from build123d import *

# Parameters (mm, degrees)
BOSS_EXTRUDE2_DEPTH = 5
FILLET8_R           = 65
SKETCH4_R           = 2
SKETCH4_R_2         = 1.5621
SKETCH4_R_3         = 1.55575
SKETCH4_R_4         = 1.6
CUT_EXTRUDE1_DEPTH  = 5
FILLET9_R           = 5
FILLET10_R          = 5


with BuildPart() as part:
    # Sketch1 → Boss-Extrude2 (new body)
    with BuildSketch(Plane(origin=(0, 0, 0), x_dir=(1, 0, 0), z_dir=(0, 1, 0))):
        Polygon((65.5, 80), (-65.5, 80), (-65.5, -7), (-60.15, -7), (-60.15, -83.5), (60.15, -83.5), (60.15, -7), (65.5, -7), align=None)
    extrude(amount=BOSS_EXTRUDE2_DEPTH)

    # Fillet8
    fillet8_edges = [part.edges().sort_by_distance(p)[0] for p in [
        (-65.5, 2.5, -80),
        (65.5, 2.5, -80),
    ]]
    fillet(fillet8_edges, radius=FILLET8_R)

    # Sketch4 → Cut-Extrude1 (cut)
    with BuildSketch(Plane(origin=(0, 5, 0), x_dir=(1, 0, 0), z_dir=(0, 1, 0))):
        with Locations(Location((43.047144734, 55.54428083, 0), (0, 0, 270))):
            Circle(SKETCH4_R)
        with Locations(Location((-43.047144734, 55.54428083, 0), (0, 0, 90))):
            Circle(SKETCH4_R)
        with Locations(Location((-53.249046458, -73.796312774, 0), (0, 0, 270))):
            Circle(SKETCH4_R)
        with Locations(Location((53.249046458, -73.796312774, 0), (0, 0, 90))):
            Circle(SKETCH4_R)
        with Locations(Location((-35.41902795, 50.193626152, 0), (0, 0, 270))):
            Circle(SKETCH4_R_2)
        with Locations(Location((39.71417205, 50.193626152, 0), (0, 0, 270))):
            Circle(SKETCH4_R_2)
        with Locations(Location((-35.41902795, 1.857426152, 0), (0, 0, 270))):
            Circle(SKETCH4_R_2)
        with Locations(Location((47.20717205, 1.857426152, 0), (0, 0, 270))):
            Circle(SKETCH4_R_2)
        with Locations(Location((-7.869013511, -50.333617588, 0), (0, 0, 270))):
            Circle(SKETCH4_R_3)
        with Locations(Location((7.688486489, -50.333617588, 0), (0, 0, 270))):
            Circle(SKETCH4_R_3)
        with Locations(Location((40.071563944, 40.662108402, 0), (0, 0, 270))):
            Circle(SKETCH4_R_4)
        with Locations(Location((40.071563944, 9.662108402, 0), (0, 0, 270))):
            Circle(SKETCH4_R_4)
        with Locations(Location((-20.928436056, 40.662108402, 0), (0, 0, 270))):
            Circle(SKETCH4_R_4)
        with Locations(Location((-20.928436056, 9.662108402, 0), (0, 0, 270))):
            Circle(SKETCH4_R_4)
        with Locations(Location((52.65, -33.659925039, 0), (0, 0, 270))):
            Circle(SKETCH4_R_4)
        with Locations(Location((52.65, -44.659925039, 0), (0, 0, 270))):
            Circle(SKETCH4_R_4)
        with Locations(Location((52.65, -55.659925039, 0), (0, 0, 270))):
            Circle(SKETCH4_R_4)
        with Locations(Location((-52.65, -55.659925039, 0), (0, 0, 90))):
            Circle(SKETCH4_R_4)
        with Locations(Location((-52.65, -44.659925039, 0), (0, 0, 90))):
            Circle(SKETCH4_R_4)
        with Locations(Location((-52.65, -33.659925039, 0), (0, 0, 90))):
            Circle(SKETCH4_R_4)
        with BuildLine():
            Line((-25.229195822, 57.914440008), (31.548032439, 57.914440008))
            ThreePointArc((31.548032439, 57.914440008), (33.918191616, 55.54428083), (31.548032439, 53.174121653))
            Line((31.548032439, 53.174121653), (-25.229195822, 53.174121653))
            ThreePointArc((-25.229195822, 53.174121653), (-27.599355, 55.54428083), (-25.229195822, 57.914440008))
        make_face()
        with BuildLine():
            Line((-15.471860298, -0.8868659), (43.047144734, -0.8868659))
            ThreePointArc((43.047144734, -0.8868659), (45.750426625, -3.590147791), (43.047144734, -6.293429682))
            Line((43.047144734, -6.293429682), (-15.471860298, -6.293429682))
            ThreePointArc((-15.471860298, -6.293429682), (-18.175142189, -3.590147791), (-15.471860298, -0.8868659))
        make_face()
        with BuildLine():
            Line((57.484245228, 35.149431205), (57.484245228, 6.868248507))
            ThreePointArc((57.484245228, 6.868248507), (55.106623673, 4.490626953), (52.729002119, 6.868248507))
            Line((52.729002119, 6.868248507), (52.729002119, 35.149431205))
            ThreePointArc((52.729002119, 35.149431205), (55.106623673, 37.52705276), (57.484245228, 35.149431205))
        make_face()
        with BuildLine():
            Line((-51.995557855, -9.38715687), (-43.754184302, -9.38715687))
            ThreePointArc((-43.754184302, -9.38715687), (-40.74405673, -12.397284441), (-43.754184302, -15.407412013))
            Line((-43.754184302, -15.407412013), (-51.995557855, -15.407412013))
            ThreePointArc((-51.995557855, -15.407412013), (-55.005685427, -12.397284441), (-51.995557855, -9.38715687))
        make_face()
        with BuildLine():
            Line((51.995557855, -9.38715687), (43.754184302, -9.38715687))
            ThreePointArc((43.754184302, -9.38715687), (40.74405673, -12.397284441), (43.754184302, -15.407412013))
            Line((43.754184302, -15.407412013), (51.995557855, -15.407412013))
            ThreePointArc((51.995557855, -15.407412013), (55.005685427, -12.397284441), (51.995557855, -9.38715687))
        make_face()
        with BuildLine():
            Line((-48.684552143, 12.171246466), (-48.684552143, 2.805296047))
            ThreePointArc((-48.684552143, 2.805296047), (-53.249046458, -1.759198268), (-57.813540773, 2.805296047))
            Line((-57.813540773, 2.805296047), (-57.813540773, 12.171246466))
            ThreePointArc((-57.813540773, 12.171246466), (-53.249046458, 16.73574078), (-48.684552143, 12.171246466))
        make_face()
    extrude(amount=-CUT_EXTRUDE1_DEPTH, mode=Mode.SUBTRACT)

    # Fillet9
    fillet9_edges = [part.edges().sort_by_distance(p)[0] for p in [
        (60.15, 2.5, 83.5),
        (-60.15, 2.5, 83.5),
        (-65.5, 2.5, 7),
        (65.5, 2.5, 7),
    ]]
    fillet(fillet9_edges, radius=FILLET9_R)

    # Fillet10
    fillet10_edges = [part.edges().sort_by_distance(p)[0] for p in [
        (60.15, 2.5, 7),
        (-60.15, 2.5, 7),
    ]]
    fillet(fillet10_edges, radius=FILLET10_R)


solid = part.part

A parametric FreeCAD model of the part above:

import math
import FreeCAD as App
import Part
import Sketcher

V = App.Vector
Q = App.Units.Quantity


def edges_at(feature, points):
    """Names of the edges that pass closest to the given points."""
    edges = feature.Shape.Edges
    near = lambda p: min(range(len(edges)), key=lambda i: edges[i].distToShape(Part.Vertex(*p))[0])
    return sorted({f"Edge{near(p) + 1}" for p in points})


def add_polygon(sketch, points):
    """Adds a closed chain of lines whose ends are joined by coincident constraints."""
    first, n = sketch.GeometryCount, len(points)
    for a, b in zip(points, points[1:] + points[:1]):
        sketch.addGeometry(Part.LineSegment(App.Vector(*a, 0), App.Vector(*b, 0)), False)
    for i in range(n):
        sketch.addConstraint(Sketcher.Constraint("Coincident", first + i, 2, first + (i + 1) % n, 1))

doc = App.newDocument("Part")
body = doc.addObject("PartDesign::Body", "Body")

sketch1 = body.newObject("Sketcher::SketchObject", "Sketch")
sketch1.AttachmentSupport = (doc.getObject("XZ_Plane"), [""])
sketch1.MapMode = "FlatFace"
add_polygon(sketch1, [(65.5, -80), (-65.5, -80), (-65.5, 7), (-60.15, 7), (-60.15, 83.5), (60.15, 83.5), (60.15, 7), (65.5, 7)])
sketch1.addConstraint(Sketcher.Constraint("Horizontal", 0))
sketch1.addConstraint(Sketcher.Constraint("Vertical", 1))
sketch1.addConstraint(Sketcher.Constraint("Horizontal", 2))
sketch1.addConstraint(Sketcher.Constraint("Vertical", 3))
sketch1.addConstraint(Sketcher.Constraint("Horizontal", 4))
sketch1.addConstraint(Sketcher.Constraint("Vertical", 5))
sketch1.addConstraint(Sketcher.Constraint("Horizontal", 6))
sketch1.addConstraint(Sketcher.Constraint("Vertical", 7))
sketch1.addConstraint(Sketcher.Constraint("Symmetric", 2, 2, 5, 2, -2))
sketch1.addConstraint(Sketcher.Constraint("Equal", 2, 6))
sketch1.addConstraint(Sketcher.Constraint("DistanceX", 0, 2, 0, 1, Q("131 mm")))
sketch1.addConstraint(Sketcher.Constraint("DistanceY", 1, 1, 1, 2, Q("87 mm")))
sketch1.addConstraint(Sketcher.Constraint("DistanceX", 4, 1, 4, 2, Q("120.3 mm")))
sketch1.addConstraint(Sketcher.Constraint("DistanceY", 3, 1, 3, 2, Q("76.5 mm")))
sketch1.addConstraint(Sketcher.Constraint("DistanceY", 0, 2, -1, 1, Q("80 mm")))
pad1 = body.newObject("PartDesign::Pad", "Pad")
pad1.Profile = sketch1
pad1.Length = 5
pad1.Reversed = True
doc.recompute()

fillet = body.newObject("PartDesign::Fillet", "Fillet")
fillet.Base = (pad1, edges_at(pad1, [(-65.5, 2.5, -80), (65.5, 2.5, -80)]))
fillet.Radius = 65

sketch2 = body.newObject("Sketcher::SketchObject", "Sketch001")
sketch2.AttachmentSupport = (doc.getObject("XZ_Plane"), [""])
sketch2.MapMode = "FlatFace"
sketch2.AttachmentOffset = App.Placement(V(0, 0, -5), App.Rotation())
sketch2.addGeometry(Part.Circle(V(43.047145, -55.544281, 0), V(0, 0, 1), 2), False)
sketch2.addGeometry(Part.Circle(V(-43.047145, -55.544281, 0), V(0, 0, 1), 2), False)
sketch2.addGeometry(Part.Circle(V(-53.249046, 73.796313, 0), V(0, 0, 1), 2), False)
sketch2.addGeometry(Part.Circle(V(53.249046, 73.796313, 0), V(0, 0, 1), 2), False)
sketch2.addGeometry(Part.Circle(V(-35.419028, -50.193626, 0), V(0, 0, 1), 1.5621), False)
sketch2.addGeometry(Part.Circle(V(39.714172, -50.193626, 0), V(0, 0, 1), 1.5621), False)
sketch2.addGeometry(Part.Circle(V(-35.419028, -1.857426, 0), V(0, 0, 1), 1.5621), False)
sketch2.addGeometry(Part.Circle(V(47.207172, -1.857426, 0), V(0, 0, 1), 1.5621), False)
sketch2.addGeometry(Part.Circle(V(-7.869014, 50.333618, 0), V(0, 0, 1), 1.55575), False)
sketch2.addGeometry(Part.Circle(V(7.688486, 50.333618, 0), V(0, 0, 1), 1.55575), False)
sketch2.addGeometry(Part.Circle(V(40.071564, -40.662108, 0), V(0, 0, 1), 1.6), False)
sketch2.addGeometry(Part.Circle(V(40.071564, -9.662108, 0), V(0, 0, 1), 1.6), False)
sketch2.addGeometry(Part.Circle(V(-20.928436, -40.662108, 0), V(0, 0, 1), 1.6), False)
sketch2.addGeometry(Part.Circle(V(-20.928436, -9.662108, 0), V(0, 0, 1), 1.6), False)
sketch2.addGeometry(Part.Circle(V(52.65, 33.659925, 0), V(0, 0, 1), 1.6), False)
sketch2.addGeometry(Part.Circle(V(52.65, 44.659925, 0), V(0, 0, 1), 1.6), False)
sketch2.addGeometry(Part.Circle(V(52.65, 55.659925, 0), V(0, 0, 1), 1.6), False)
sketch2.addGeometry(Part.Circle(V(-52.65, 55.659925, 0), V(0, 0, 1), 1.6), False)
sketch2.addGeometry(Part.Circle(V(-52.65, 44.659925, 0), V(0, 0, 1), 1.6), False)
sketch2.addGeometry(Part.Circle(V(-52.65, 33.659925, 0), V(0, 0, 1), 1.6), False)
sketch2.addGeometry(Part.LineSegment(V(31.548032, -57.91444, 0), V(-25.229196, -57.91444, 0)), False)
sketch2.addGeometry(Part.ArcOfCircle(Part.Circle(V(-25.229196, -55.544281, 0), V(0, 0, 1), 2.370159), math.radians(90), math.radians(270)), False)
sketch2.addGeometry(Part.LineSegment(V(-25.229196, -53.174122, 0), V(31.548032, -53.174122, 0)), False)
sketch2.addGeometry(Part.ArcOfCircle(Part.Circle(V(31.548032, -55.544281, 0), V(0, 0, 1), 2.370159), math.radians(-90), math.radians(90)), False)
sketch2.addGeometry(Part.LineSegment(V(43.047145, 0.886866, 0), V(-15.47186, 0.886866, 0)), False)
sketch2.addGeometry(Part.ArcOfCircle(Part.Circle(V(-15.47186, 3.590148, 0), V(0, 0, 1), 2.703282), math.radians(90), math.radians(270)), False)
sketch2.addGeometry(Part.LineSegment(V(-15.47186, 6.29343, 0), V(43.047145, 6.29343, 0)), False)
sketch2.addGeometry(Part.ArcOfCircle(Part.Circle(V(43.047145, 3.590148, 0), V(0, 0, 1), 2.703282), math.radians(-90), math.radians(90)), False)
sketch2.addGeometry(Part.LineSegment(V(57.484245, -6.868249, 0), V(57.484245, -35.149431, 0)), False)
sketch2.addGeometry(Part.ArcOfCircle(Part.Circle(V(55.106624, -35.149431, 0), V(0, 0, 1), 2.377622), math.radians(180), math.radians(360)), False)
sketch2.addGeometry(Part.LineSegment(V(52.729002, -35.149431, 0), V(52.729002, -6.868249, 0)), False)
sketch2.addGeometry(Part.ArcOfCircle(Part.Circle(V(55.106624, -6.868249, 0), V(0, 0, 1), 2.377622), math.radians(0), math.radians(180)), False)
sketch2.addGeometry(Part.LineSegment(V(-43.754184, 9.387157, 0), V(-51.995558, 9.387157, 0)), False)
sketch2.addGeometry(Part.ArcOfCircle(Part.Circle(V(-51.995558, 12.397284, 0), V(0, 0, 1), 3.010128), math.radians(90), math.radians(270)), False)
sketch2.addGeometry(Part.LineSegment(V(-51.995558, 15.407412, 0), V(-43.754184, 15.407412, 0)), False)
sketch2.addGeometry(Part.ArcOfCircle(Part.Circle(V(-43.754184, 12.397284, 0), V(0, 0, 1), 3.010128), math.radians(-90), math.radians(90)), False)
sketch2.addGeometry(Part.LineSegment(V(51.995558, 9.387157, 0), V(43.754184, 9.387157, 0)), False)
sketch2.addGeometry(Part.ArcOfCircle(Part.Circle(V(43.754184, 12.397284, 0), V(0, 0, 1), 3.010128), math.radians(90), math.radians(270)), False)
sketch2.addGeometry(Part.LineSegment(V(43.754184, 15.407412, 0), V(51.995558, 15.407412, 0)), False)
sketch2.addGeometry(Part.ArcOfCircle(Part.Circle(V(51.995558, 12.397284, 0), V(0, 0, 1), 3.010128), math.radians(-90), math.radians(90)), False)
sketch2.addGeometry(Part.LineSegment(V(-48.684552, -2.805296, 0), V(-48.684552, -12.171246, 0)), False)
sketch2.addGeometry(Part.ArcOfCircle(Part.Circle(V(-53.249046, -12.171246, 0), V(0, 0, 1), 4.564494), math.radians(-180), math.radians(0)), False)
sketch2.addGeometry(Part.LineSegment(V(-57.813541, -12.171246, 0), V(-57.813541, -2.805296, 0)), False)
sketch2.addGeometry(Part.ArcOfCircle(Part.Circle(V(-53.249046, -2.805296, 0), V(0, 0, 1), 4.564494), math.radians(0), math.radians(180)), False)
sketch2.addConstraint(Sketcher.Constraint("Tangent", 20, 2, 21, 2))
sketch2.addConstraint(Sketcher.Constraint("Tangent", 21, 1, 22, 1))
sketch2.addConstraint(Sketcher.Constraint("Tangent", 22, 2, 23, 2))
sketch2.addConstraint(Sketcher.Constraint("Tangent", 23, 1, 20, 1))
sketch2.addConstraint(Sketcher.Constraint("Tangent", 24, 2, 25, 2))
sketch2.addConstraint(Sketcher.Constraint("Tangent", 25, 1, 26, 1))
sketch2.addConstraint(Sketcher.Constraint("Tangent", 26, 2, 27, 2))
sketch2.addConstraint(Sketcher.Constraint("Tangent", 27, 1, 24, 1))
sketch2.addConstraint(Sketcher.Constraint("Tangent", 28, 2, 29, 2))
sketch2.addConstraint(Sketcher.Constraint("Tangent", 29, 1, 30, 1))
sketch2.addConstraint(Sketcher.Constraint("Tangent", 30, 2, 31, 2))
sketch2.addConstraint(Sketcher.Constraint("Tangent", 31, 1, 28, 1))
sketch2.addConstraint(Sketcher.Constraint("Tangent", 32, 2, 33, 2))
sketch2.addConstraint(Sketcher.Constraint("Tangent", 33, 1, 34, 1))
sketch2.addConstraint(Sketcher.Constraint("Tangent", 34, 2, 35, 2))
sketch2.addConstraint(Sketcher.Constraint("Tangent", 35, 1, 32, 1))
sketch2.addConstraint(Sketcher.Constraint("Tangent", 36, 2, 37, 2))
sketch2.addConstraint(Sketcher.Constraint("Tangent", 37, 1, 38, 1))
sketch2.addConstraint(Sketcher.Constraint("Tangent", 38, 2, 39, 2))
sketch2.addConstraint(Sketcher.Constraint("Tangent", 39, 1, 36, 1))
sketch2.addConstraint(Sketcher.Constraint("Tangent", 40, 2, 41, 2))
sketch2.addConstraint(Sketcher.Constraint("Tangent", 41, 1, 42, 1))
sketch2.addConstraint(Sketcher.Constraint("Tangent", 42, 2, 43, 2))
sketch2.addConstraint(Sketcher.Constraint("Tangent", 43, 1, 40, 1))
sketch2.addConstraint(Sketcher.Constraint("Horizontal", 20))
sketch2.addConstraint(Sketcher.Constraint("Horizontal", 22))
sketch2.addConstraint(Sketcher.Constraint("Horizontal", 24))
sketch2.addConstraint(Sketcher.Constraint("Horizontal", 26))
sketch2.addConstraint(Sketcher.Constraint("Vertical", 28))
sketch2.addConstraint(Sketcher.Constraint("Vertical", 30))
sketch2.addConstraint(Sketcher.Constraint("Horizontal", 32))
sketch2.addConstraint(Sketcher.Constraint("Horizontal", 34))
sketch2.addConstraint(Sketcher.Constraint("Horizontal", 36))
sketch2.addConstraint(Sketcher.Constraint("Horizontal", 38))
sketch2.addConstraint(Sketcher.Constraint("Vertical", 40))
sketch2.addConstraint(Sketcher.Constraint("Vertical", 42))
sketch2.addConstraint(Sketcher.Constraint("Equal", 0, 1))
sketch2.addConstraint(Sketcher.Constraint("Equal", 1, 2))
sketch2.addConstraint(Sketcher.Constraint("Equal", 2, 3))
sketch2.addConstraint(Sketcher.Constraint("Equal", 4, 5))
sketch2.addConstraint(Sketcher.Constraint("Equal", 5, 6))
sketch2.addConstraint(Sketcher.Constraint("Equal", 6, 7))
sketch2.addConstraint(Sketcher.Constraint("Equal", 8, 9))
sketch2.addConstraint(Sketcher.Constraint("Equal", 10, 11))
sketch2.addConstraint(Sketcher.Constraint("Equal", 11, 12))
sketch2.addConstraint(Sketcher.Constraint("Equal", 12, 13))
sketch2.addConstraint(Sketcher.Constraint("Equal", 13, 14))
sketch2.addConstraint(Sketcher.Constraint("Equal", 14, 15))
sketch2.addConstraint(Sketcher.Constraint("Equal", 15, 16))
sketch2.addConstraint(Sketcher.Constraint("Equal", 16, 17))
sketch2.addConstraint(Sketcher.Constraint("Equal", 17, 18))
sketch2.addConstraint(Sketcher.Constraint("Equal", 18, 19))
sketch2.addConstraint(Sketcher.Constraint("Equal", 35, 37))
sketch2.addConstraint(Sketcher.Constraint("Symmetric", 0, 3, 1, 3, -2))
sketch2.addConstraint(Sketcher.Constraint("Symmetric", 2, 3, 3, 3, -2))
sketch2.addConstraint(Sketcher.Constraint("Symmetric", 16, 3, 17, 3, -2))
sketch2.addConstraint(Sketcher.Constraint("Symmetric", 15, 3, 18, 3, -2))
sketch2.addConstraint(Sketcher.Constraint("Symmetric", 14, 3, 19, 3, -2))
sketch2.addConstraint(Sketcher.Constraint("Symmetric", 35, 3, 37, 3, -2))
sketch2.addConstraint(Sketcher.Constraint("Horizontal", 4, 3, 5, 3))
sketch2.addConstraint(Sketcher.Constraint("Horizontal", 6, 3, 7, 3))
sketch2.addConstraint(Sketcher.Constraint("Horizontal", 8, 3, 9, 3))
sketch2.addConstraint(Sketcher.Constraint("Horizontal", 10, 3, 12, 3))
sketch2.addConstraint(Sketcher.Constraint("Horizontal", 11, 3, 13, 3))
sketch2.addConstraint(Sketcher.Constraint("Horizontal", 1, 3, 21, 3))
sketch2.addConstraint(Sketcher.Constraint("Vertical", 4, 3, 6, 3))
sketch2.addConstraint(Sketcher.Constraint("Vertical", 10, 3, 11, 3))
sketch2.addConstraint(Sketcher.Constraint("Vertical", 12, 3, 13, 3))
sketch2.addConstraint(Sketcher.Constraint("Vertical", 14, 3, 15, 3))
sketch2.addConstraint(Sketcher.Constraint("Vertical", 15, 3, 16, 3))
sketch2.addConstraint(Sketcher.Constraint("Vertical", 0, 3, 27, 3))
sketch2.addConstraint(Sketcher.Constraint("Vertical", 2, 3, 41, 3))
sketch2.addConstraint(Sketcher.Constraint("Equal", 34, 36))
sketch2.addConstraint(Sketcher.Constraint("Diameter", 0, Q("4 mm")))
sketch2.addConstraint(Sketcher.Constraint("Diameter", 10, Q("3.2 mm")))
sketch2.addConstraint(Sketcher.Constraint("DistanceY", 10, 3, 11, 3, Q("31 mm")))
sketch2.addConstraint(Sketcher.Constraint("DistanceX", 12, 3, 10, 3, Q("61 mm")))
sketch2.addConstraint(Sketcher.Constraint("DistanceY", 14, 3, 15, 3, Q("11 mm")))
sketch2.addConstraint(Sketcher.Constraint("DistanceY", 15, 3, 16, 3, Q("11 mm")))
sketch2.addConstraint(Sketcher.Constraint("Diameter", 4, Q("3.1242 mm")))
sketch2.addConstraint(Sketcher.Constraint("Diameter", 8, Q("3.1115 mm")))
sketch2.addConstraint(Sketcher.Constraint("DistanceX", -1, 1, 14, 3, Q("52.65 mm")))
sketch2.addConstraint(Sketcher.Constraint("Radius", 21, Q("2.370159 mm")))
sketch2.addConstraint(Sketcher.Constraint("Radius", 25, Q("2.703282 mm")))
sketch2.addConstraint(Sketcher.Constraint("Radius", 29, Q("2.377622 mm")))
sketch2.addConstraint(Sketcher.Constraint("Radius", 33, Q("3.010128 mm")))
sketch2.addConstraint(Sketcher.Constraint("Radius", 41, Q("4.564494 mm")))
sketch2.addConstraint(Sketcher.Constraint("DistanceX", 5, 3, 7, 3, Q("7.493 mm")))
sketch2.addConstraint(Sketcher.Constraint("DistanceX", 20, 2, 20, 1, Q("56.777228 mm")))
sketch2.addConstraint(Sketcher.Constraint("DistanceY", 40, 2, 40, 1, Q("9.36595 mm")))
sketch2.addConstraint(Sketcher.Constraint("DistanceX", 2, 3, 1, 3, Q("10.201902 mm")))
sketch2.addConstraint(Sketcher.Constraint("DistanceX", 4, 3, 5, 3, Q("75.1332 mm")))
sketch2.addConstraint(Sketcher.Constraint("DistanceY", 4, 3, 6, 3, Q("48.3362 mm")))
sketch2.addConstraint(Sketcher.Constraint("DistanceX", 8, 3, 9, 3, Q("15.5575 mm")))
sketch2.addConstraint(Sketcher.Constraint("DistanceX", 0, 3, 28, 2, Q("14.4371 mm")))
sketch2.addConstraint(Sketcher.Constraint("DistanceX", 24, 2, 24, 1, Q("58.519005 mm")))
sketch2.addConstraint(Sketcher.Constraint("DistanceX", 32, 2, 32, 1, Q("8.241374 mm")))
sketch2.addConstraint(Sketcher.Constraint("DistanceY", 28, 2, 28, 1, Q("28.281183 mm")))
sketch2.addConstraint(Sketcher.Constraint("DistanceY", 0, 3, -1, 1, Q("55.544281 mm")))
sketch2.addConstraint(Sketcher.Constraint("DistanceY", 10, 3, -1, 1, Q("40.662108 mm")))
sketch2.addConstraint(Sketcher.Constraint("DistanceX", 25, 3, -1, 1, Q("15.47186 mm")))
sketch2.addConstraint(Sketcher.Constraint("DistanceY", 29, 3, -1, 1, Q("35.149431 mm")))
sketch2.addConstraint(Sketcher.Constraint("DistanceY", -1, 1, 25, 1, Q("6.29343 mm")))
sketch2.addConstraint(Sketcher.Constraint("DistanceX", 2, 3, 4, 3, Q("17.830019 mm")))
sketch2.addConstraint(Sketcher.Constraint("DistanceY", 4, 3, 2, 3, Q("123.989939 mm")))
sketch2.addConstraint(Sketcher.Constraint("DistanceX", 8, 3, 3, 3, Q("61.11806 mm")))
sketch2.addConstraint(Sketcher.Constraint("DistanceX", 5, 3, 10, 3, Q("0.357392 mm")))
sketch2.addConstraint(Sketcher.Constraint("DistanceY", 7, 3, 14, 3, Q("35.517351 mm")))
sketch2.addConstraint(Sketcher.Constraint("DistanceX", 21, 3, 12, 3, Q("4.30076 mm")))
sketch2.addConstraint(Sketcher.Constraint("DistanceY", 25, 3, 8, 3, Q("46.74347 mm")))
sketch2.addConstraint(Sketcher.Constraint("DistanceY", 33, 3, 19, 3, Q("21.262641 mm")))
sketch2.addConstraint(Sketcher.Constraint("DistanceX", 33, 3, 6, 3, Q("16.57653 mm")))
sketch2.addConstraint(Sketcher.Constraint("DistanceY", 41, 3, 6, 3, Q("10.31382 mm")))
sketch2.addConstraint(Sketcher.Constraint("DistanceY", 41, 3, 13, 3, Q("2.509138 mm")))
pocket1 = body.newObject("PartDesign::Pocket", "Pocket")
pocket1.Profile = sketch2
pocket1.Length = 5
pocket1.Reversed = True
doc.recompute()

fillet2 = body.newObject("PartDesign::Fillet", "Fillet001")
fillet2.Base = (pocket1, edges_at(pocket1, [
    (60.15, 2.5, 83.5),
    (-60.15, 2.5, 83.5),
    (-65.5, 2.5, 7),
    (65.5, 2.5, 7),
]))
fillet2.Radius = 5
doc.recompute()

fillet3 = body.newObject("PartDesign::Fillet", "Fillet002")
fillet3.Base = (fillet2, edges_at(fillet2, [(60.15, 2.5, 7), (-60.15, 2.5, 7)]))
fillet3.Radius = 5

doc.recompute()
